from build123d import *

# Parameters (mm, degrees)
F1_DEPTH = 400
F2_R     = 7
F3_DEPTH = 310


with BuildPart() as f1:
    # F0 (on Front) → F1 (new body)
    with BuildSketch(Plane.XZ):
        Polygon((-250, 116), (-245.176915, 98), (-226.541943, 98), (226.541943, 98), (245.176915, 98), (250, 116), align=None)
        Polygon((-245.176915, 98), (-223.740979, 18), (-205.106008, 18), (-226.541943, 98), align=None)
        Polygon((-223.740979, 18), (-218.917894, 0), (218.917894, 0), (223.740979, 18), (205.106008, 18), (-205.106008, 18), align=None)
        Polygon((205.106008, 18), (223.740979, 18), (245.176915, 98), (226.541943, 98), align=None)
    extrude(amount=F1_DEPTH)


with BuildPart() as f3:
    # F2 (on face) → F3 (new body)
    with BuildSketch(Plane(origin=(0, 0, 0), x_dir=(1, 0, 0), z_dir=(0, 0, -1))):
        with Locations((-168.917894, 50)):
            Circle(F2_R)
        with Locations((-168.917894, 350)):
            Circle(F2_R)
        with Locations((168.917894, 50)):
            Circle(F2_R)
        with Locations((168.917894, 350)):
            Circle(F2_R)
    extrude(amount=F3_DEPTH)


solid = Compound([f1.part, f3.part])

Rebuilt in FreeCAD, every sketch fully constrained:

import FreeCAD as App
import Part
import Sketcher
from FreeCAD import Vector
Q = App.Units.Quantity

doc = App.newDocument("Part")
body = doc.addObject("PartDesign::Body", "Body")

# Sketch on XZ plane
sketch1 = body.newObject("Sketcher::SketchObject", "Sketch")
sketch1.AttachmentSupport = (doc.getObject("XZ_Plane"), [""])
sketch1.MapMode = "FlatFace"
sketch1.addGeometry(Part.LineSegment(Vector(-250, 116, 0), Vector(-245.176915, 98, 0)), False)
sketch1.addGeometry(Part.LineSegment(Vector(-245.176915, 98, 0), Vector(-223.740979, 18, 0)), False)
sketch1.addGeometry(Part.LineSegment(Vector(-223.740979, 18, 0), Vector(-218.917894, 0, 0)), False)
sketch1.addGeometry(Part.LineSegment(Vector(-218.917894, 0, 0), Vector(218.917894, 0, 0)), False)
sketch1.addGeometry(Part.LineSegment(Vector(218.917894, 0, 0), Vector(223.740979, 18, 0)), False)
sketch1.addGeometry(Part.LineSegment(Vector(223.740979, 18, 0), Vector(245.176915, 98, 0)), False)
sketch1.addGeometry(Part.LineSegment(Vector(245.176915, 98, 0), Vector(250, 116, 0)), False)
sketch1.addGeometry(Part.LineSegment(Vector(250, 116, 0), Vector(-250, 116, 0)), False)
sketch1.addGeometry(Part.LineSegment(Vector(205.106008, 18, 0), Vector(-205.106008, 18, 0)), False)
sketch1.addGeometry(Part.LineSegment(Vector(-205.106008, 18, 0), Vector(-226.541943, 98, 0)), False)
sketch1.addGeometry(Part.LineSegment(Vector(-226.541943, 98, 0), Vector(226.541943, 98, 0)), False)
sketch1.addGeometry(Part.LineSegment(Vector(226.541943, 98, 0), Vector(205.106008, 18, 0)), False)
sketch1.addConstraint(Sketcher.Constraint("Coincident", 0, 2, 1, 1))
sketch1.addConstraint(Sketcher.Constraint("Coincident", 1, 2, 2, 1))
sketch1.addConstraint(Sketcher.Constraint("Coincident", 2, 2, 3, 1))
sketch1.addConstraint(Sketcher.Constraint("Coincident", 3, 2, 4, 1))
sketch1.addConstraint(Sketcher.Constraint("Coincident", 4, 2, 5, 1))
sketch1.addConstraint(Sketcher.Constraint("Coincident", 5, 2, 6, 1))
sketch1.addConstraint(Sketcher.Constraint("Coincident", 6, 2, 7, 1))
sketch1.addConstraint(Sketcher.Constraint("Coincident", 7, 2, 0, 1))
sketch1.addConstraint(Sketcher.Constraint("Coincident", 8, 2, 9, 1))
sketch1.addConstraint(Sketcher.Constraint("Coincident", 9, 2, 10, 1))
sketch1.addConstraint(Sketcher.Constraint("Coincident", 10, 2, 11, 1))
sketch1.addConstraint(Sketcher.Constraint("Coincident", 11, 2, 8, 1))
sketch1.addConstraint(Sketcher.Constraint("Horizontal", 3))
sketch1.addConstraint(Sketcher.Constraint("Horizontal", 7))
sketch1.addConstraint(Sketcher.Constraint("Horizontal", 8))
sketch1.addConstraint(Sketcher.Constraint("Horizontal", 10))
sketch1.addConstraint(Sketcher.Constraint("Symmetric", 2, 2, 3, 2, -1, 1))
sketch1.addConstraint(Sketcher.Constraint("Symmetric", 1, 2, 4, 2, -2))
sketch1.addConstraint(Sketcher.Constraint("Symmetric", 0, 2, 5, 2, -2))
sketch1.addConstraint(Sketcher.Constraint("Parallel", 0, 1))
sketch1.addConstraint(Sketcher.Constraint("Parallel", 1, 2))
sketch1.addConstraint(Sketcher.Constraint("Parallel", 5, 6))
sketch1.addConstraint(Sketcher.Constraint("Parallel", 2, 9))
sketch1.addConstraint(Sketcher.Constraint("Parallel", 6, 11))
sketch1.addConstraint(Sketcher.Constraint("Horizontal", 4, 2, 8, 2))
sketch1.addConstraint(Sketcher.Constraint("Horizontal", 5, 2, 9, 2))
sketch1.addConstraint(Sketcher.Constraint("Equal", 0, 2))
sketch1.addConstraint(Sketcher.Constraint("DistanceX", 7, 2, 7, 1, 500.0))
sketch1.addConstraint(Sketcher.Constraint("Angle", 0, Q("-75.000001 deg")))
sketch1.addConstraint(Sketcher.Constraint("DistanceY", -1, 1, 0, 2, 98.0))
sketch1.addConstraint(Sketcher.Constraint("DistanceY", -1, 1, 1, 2, 18.0))
sketch1.addConstraint(Sketcher.Constraint("DistanceX", 8, 2, 3, 2, 424.023902))
sketch1.addConstraint(Sketcher.Constraint("DistanceX", 8, 2, 8, 1, 410.212016))
pad1 = body.newObject("PartDesign::Pad", "Pad")
pad1.Profile = sketch1
pad1.Length = 400
body2 = doc.addObject("PartDesign::Body", "Body001")
body2.AllowCompound = True

# Sketch on XY plane
sketch2 = body2.newObject("Sketcher::SketchObject", "Sketch001")
sketch2.AttachmentSupport = (doc.getObject("XY_Plane001"), [""])
sketch2.MapMode = "FlatFace"
sketch2.addGeometry(Part.Circle(Vector(-168.917894, -50, 0), Vector(0, 0, 1), 7), False)
sketch2.addGeometry(Part.Circle(Vector(-168.917894, -350, 0), Vector(0, 0, 1), 7), False)
sketch2.addGeometry(Part.Circle(Vector(168.917894, -50, 0), Vector(0, 0, 1), 7), False)
sketch2.addGeometry(Part.Circle(Vector(168.917894, -350, 0), Vector(0, 0, 1), 7), False)
sketch2.addConstraint(Sketcher.Constraint("Equal", 0, 1))
sketch2.addConstraint(Sketcher.Constraint("Equal", 1, 2))
sketch2.addConstraint(Sketcher.Constraint("Equal", 2, 3))
sketch2.addConstraint(Sketcher.Constraint("Symmetric", 0, 3, 2, 3, -2))
sketch2.addConstraint(Sketcher.Constraint("Symmetric", 1, 3, 3, 3, -2))
sketch2.addConstraint(Sketcher.Constraint("Vertical", 0, 3, 1, 3))
sketch2.addConstraint(Sketcher.Constraint("Diameter", 0, 14.0))
sketch2.addConstraint(Sketcher.Constraint("DistanceY", 0, 3, -1, 1, 50.0))
sketch2.addConstraint(Sketcher.Constraint("DistanceY", 1, 3, -1, 1, 350.0))
sketch2.addConstraint(Sketcher.Constraint("DistanceX", 0, 3, 2, 3, 337.835788))
pad2 = body2.newObject("PartDesign::Pad", "Pad001")
pad2.Profile = sketch2
pad2.Length = 310
pad2.Reversed = True

doc.recompute()
